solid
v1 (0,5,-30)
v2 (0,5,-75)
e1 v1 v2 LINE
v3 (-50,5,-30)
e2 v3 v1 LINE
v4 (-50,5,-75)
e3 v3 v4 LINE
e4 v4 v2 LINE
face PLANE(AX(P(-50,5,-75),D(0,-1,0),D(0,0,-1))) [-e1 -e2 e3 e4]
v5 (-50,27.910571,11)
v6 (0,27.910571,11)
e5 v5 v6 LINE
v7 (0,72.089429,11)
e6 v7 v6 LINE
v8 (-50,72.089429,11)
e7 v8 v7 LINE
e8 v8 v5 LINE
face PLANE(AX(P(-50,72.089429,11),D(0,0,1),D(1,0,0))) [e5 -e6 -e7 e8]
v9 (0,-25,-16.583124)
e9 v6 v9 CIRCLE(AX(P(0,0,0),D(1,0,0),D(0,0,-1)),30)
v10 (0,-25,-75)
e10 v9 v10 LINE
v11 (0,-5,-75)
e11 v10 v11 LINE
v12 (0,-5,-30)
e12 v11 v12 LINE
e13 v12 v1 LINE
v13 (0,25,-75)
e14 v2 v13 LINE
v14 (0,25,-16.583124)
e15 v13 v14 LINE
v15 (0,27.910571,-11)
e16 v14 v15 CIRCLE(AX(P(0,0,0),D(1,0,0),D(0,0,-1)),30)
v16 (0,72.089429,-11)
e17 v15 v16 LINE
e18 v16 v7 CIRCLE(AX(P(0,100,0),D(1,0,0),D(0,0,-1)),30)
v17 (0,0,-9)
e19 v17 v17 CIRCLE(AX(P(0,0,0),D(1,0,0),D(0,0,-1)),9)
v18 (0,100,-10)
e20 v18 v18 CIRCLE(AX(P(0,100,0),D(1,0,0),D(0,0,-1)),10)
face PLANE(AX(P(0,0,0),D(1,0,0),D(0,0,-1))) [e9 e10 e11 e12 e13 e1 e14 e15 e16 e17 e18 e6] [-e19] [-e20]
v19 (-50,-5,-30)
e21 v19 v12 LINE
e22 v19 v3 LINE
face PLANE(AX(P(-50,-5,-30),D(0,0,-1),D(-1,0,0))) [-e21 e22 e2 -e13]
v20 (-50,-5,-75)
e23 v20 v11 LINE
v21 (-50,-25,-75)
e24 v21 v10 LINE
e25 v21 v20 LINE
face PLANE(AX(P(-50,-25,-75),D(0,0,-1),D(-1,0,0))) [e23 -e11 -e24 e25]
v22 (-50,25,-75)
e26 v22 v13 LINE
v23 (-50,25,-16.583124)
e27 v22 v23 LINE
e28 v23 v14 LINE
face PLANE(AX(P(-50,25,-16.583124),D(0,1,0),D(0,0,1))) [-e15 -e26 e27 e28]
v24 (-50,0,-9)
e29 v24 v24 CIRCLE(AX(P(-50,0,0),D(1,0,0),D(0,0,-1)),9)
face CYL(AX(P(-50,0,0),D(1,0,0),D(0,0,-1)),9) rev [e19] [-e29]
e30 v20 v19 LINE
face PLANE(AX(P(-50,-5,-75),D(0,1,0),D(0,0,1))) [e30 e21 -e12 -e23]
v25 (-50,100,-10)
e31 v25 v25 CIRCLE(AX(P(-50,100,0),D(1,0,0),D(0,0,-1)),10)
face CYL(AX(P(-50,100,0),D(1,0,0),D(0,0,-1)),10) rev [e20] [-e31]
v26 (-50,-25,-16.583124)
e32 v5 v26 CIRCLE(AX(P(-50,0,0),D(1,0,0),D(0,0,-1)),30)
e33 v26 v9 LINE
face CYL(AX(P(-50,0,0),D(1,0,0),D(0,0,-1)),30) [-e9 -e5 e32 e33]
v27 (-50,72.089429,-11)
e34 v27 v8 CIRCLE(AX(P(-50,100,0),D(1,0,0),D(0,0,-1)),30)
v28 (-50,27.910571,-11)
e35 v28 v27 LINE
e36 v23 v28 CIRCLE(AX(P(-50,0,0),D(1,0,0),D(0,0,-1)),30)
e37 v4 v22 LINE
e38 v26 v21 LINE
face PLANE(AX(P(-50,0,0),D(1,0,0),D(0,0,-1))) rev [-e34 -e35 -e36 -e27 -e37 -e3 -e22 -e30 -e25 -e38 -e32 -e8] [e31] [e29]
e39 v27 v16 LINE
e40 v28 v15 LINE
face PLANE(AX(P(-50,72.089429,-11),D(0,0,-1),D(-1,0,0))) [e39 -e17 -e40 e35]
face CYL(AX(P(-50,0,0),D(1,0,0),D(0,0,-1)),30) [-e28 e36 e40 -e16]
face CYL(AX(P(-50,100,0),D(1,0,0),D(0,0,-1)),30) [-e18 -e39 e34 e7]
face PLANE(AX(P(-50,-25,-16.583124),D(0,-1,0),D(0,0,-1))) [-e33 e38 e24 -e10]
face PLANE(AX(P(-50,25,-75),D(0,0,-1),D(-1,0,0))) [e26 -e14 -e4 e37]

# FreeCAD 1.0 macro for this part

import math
import FreeCAD as App
import Part
import Sketcher
from FreeCAD import Vector
Q = App.Units.Quantity

doc = App.newDocument("Part")
params = doc.addObject("Spreadsheet::Sheet", "Params")
for row, (alias, value) in enumerate([
    ("sketch1_diameter", "18 mm"),
    ("sketch1_diameter2", "20 mm"),
    ("sketch1_radius", "30 mm"),
    ("sketch1_width", "20 mm"),
    ("sketch1_width2", "10 mm"),
    ("pad1_length", "50 mm"),
], start=1):
    params.set(f"A{row}", alias)
    params.set(f"B{row}", "=" + value)
    params.setAlias(f"B{row}", alias)

body = doc.addObject("PartDesign::Body", "Body")

sketch1 = body.newObject("Sketcher::SketchObject", "Sketch")
sketch1.AttachmentSupport = (doc.getObject("YZ_Plane"), [""])
sketch1.MapMode = "FlatFace"
sketch1.addGeometry([
    Part.LineSegment(Vector(-25, -17, 0), Vector(-25, -75, 0)),
    Part.LineSegment(Vector(-25, -75, 0), Vector(-5, -75, 0)),
    Part.LineSegment(Vector(-5, -75, 0), Vector(-5, -30, 0)),
    Part.LineSegment(Vector(-5, -30, 0), Vector(5, -30, 0)),
    Part.LineSegment(Vector(5, -30, 0), Vector(5, -75, 0)),
    Part.LineSegment(Vector(5, -75, 0), Vector(25, -75, 0)),
    Part.LineSegment(Vector(25, -75, 0), Vector(25, -17, 0)),
    Part.ArcOfCircle(Part.Circle(Vector(0, 0, 0), Vector(0, 0, 1), 30), math.radians(-33.56), math.radians(-21.51)),
    Part.LineSegment(Vector(28, -11, 0), Vector(72, -11, 0)),
    Part.ArcOfCircle(Part.Circle(Vector(100, 0, 0), Vector(0, 0, 1), 30), math.radians(-158), math.radians(158)),
    Part.LineSegment(Vector(72, 11, 0), Vector(28, 11, 0)),
    Part.ArcOfCircle(Part.Circle(Vector(0, 0, 0), Vector(0, 0, 1), 30), math.radians(22), math.radians(214)),
    Part.Circle(Vector(0, 0, 0), Vector(0, 0, 1), 9),
    Part.Circle(Vector(100, 0, 0), Vector(0, 0, 1), 10),
], False)
sketch1.addConstraint([
    Sketcher.Constraint("Coincident", 0, 2, 1, 1),
    Sketcher.Constraint("Coincident", 1, 2, 2, 1),
    Sketcher.Constraint("Coincident", 2, 2, 3, 1),
    Sketcher.Constraint("Coincident", 3, 2, 4, 1),
    Sketcher.Constraint("Coincident", 4, 2, 5, 1),
    Sketcher.Constraint("Coincident", 5, 2, 6, 1),
    Sketcher.Constraint("Coincident", 6, 2, 7, 1),
    Sketcher.Constraint("Coincident", 7, 2, 8, 1),
    Sketcher.Constraint("Coincident", 8, 2, 9, 1),
    Sketcher.Constraint("Coincident", 9, 2, 10, 1),
    Sketcher.Constraint("Coincident", 10, 2, 11, 1),
    Sketcher.Constraint("Coincident", 11, 2, 0, 1),
    Sketcher.Constraint("Vertical", 0),
    Sketcher.Constraint("Horizontal", 1),
    Sketcher.Constraint("Vertical", 2),
    Sketcher.Constraint("Horizontal", 3),
    Sketcher.Constraint("Vertical", 4),
    Sketcher.Constraint("Horizontal", 5),
    Sketcher.Constraint("Vertical", 6),
    Sketcher.Constraint("Horizontal", 8),
    Sketcher.Constraint("Horizontal", 10),
    Sketcher.Constraint("Coincident", 7, 3, -1, 1),
    Sketcher.Constraint("Coincident", 11, 3, -1, 1),
    Sketcher.Constraint("Coincident", 12, 3, -1, 1),
    Sketcher.Constraint("Coincident", 13, 3, 9, 3),
    Sketcher.Constraint("Equal", 7, 9),
    Sketcher.Constraint("Equal", 9, 11),
    Sketcher.Constraint("Symmetric", 1, 2, 4, 2, -2),
    Sketcher.Constraint("Symmetric", 8, 2, 9, 2, -1),
    Sketcher.Constraint("Horizontal", 6, 2, 11, 2),
    Sketcher.Constraint("Diameter", 12, Q("18 mm")),
    Sketcher.Constraint("Diameter", 13, Q("20 mm")),
    Sketcher.Constraint("Radius", 7, Q("30 mm")),
    Sketcher.Constraint("DistanceX", 1, 1, 1, 2, Q("20 mm")),
    Sketcher.Constraint("DistanceX", 3, 1, 3, 2, Q("10 mm")),
    Sketcher.Constraint("DistanceY", 2, 1, 2, 2, Q("45 mm")),
    Sketcher.Constraint("DistanceX", -1, 1, 9, 3, Q("100 mm")),
    Sketcher.Constraint("DistanceY", 0, 2, -1, 1, Q("75 mm")),
    Sketcher.Constraint("DistanceY", 7, 2, -1, 1, Q("11 mm")),
])
sketch1.setExpression("Constraints[30]", "Params.sketch1_diameter")
sketch1.setExpression("Constraints[31]", "Params.sketch1_diameter2")
sketch1.setExpression("Constraints[32]", "Params.sketch1_radius")
sketch1.setExpression("Constraints[33]", "Params.sketch1_width")
sketch1.setExpression("Constraints[34]", "Params.sketch1_width2")
pad1 = body.newObject("PartDesign::Pad", "Pad")
pad1.Profile = sketch1
pad1.setExpression("Length", "Params.pad1_length")
pad1.Reversed = True

doc.recompute()
